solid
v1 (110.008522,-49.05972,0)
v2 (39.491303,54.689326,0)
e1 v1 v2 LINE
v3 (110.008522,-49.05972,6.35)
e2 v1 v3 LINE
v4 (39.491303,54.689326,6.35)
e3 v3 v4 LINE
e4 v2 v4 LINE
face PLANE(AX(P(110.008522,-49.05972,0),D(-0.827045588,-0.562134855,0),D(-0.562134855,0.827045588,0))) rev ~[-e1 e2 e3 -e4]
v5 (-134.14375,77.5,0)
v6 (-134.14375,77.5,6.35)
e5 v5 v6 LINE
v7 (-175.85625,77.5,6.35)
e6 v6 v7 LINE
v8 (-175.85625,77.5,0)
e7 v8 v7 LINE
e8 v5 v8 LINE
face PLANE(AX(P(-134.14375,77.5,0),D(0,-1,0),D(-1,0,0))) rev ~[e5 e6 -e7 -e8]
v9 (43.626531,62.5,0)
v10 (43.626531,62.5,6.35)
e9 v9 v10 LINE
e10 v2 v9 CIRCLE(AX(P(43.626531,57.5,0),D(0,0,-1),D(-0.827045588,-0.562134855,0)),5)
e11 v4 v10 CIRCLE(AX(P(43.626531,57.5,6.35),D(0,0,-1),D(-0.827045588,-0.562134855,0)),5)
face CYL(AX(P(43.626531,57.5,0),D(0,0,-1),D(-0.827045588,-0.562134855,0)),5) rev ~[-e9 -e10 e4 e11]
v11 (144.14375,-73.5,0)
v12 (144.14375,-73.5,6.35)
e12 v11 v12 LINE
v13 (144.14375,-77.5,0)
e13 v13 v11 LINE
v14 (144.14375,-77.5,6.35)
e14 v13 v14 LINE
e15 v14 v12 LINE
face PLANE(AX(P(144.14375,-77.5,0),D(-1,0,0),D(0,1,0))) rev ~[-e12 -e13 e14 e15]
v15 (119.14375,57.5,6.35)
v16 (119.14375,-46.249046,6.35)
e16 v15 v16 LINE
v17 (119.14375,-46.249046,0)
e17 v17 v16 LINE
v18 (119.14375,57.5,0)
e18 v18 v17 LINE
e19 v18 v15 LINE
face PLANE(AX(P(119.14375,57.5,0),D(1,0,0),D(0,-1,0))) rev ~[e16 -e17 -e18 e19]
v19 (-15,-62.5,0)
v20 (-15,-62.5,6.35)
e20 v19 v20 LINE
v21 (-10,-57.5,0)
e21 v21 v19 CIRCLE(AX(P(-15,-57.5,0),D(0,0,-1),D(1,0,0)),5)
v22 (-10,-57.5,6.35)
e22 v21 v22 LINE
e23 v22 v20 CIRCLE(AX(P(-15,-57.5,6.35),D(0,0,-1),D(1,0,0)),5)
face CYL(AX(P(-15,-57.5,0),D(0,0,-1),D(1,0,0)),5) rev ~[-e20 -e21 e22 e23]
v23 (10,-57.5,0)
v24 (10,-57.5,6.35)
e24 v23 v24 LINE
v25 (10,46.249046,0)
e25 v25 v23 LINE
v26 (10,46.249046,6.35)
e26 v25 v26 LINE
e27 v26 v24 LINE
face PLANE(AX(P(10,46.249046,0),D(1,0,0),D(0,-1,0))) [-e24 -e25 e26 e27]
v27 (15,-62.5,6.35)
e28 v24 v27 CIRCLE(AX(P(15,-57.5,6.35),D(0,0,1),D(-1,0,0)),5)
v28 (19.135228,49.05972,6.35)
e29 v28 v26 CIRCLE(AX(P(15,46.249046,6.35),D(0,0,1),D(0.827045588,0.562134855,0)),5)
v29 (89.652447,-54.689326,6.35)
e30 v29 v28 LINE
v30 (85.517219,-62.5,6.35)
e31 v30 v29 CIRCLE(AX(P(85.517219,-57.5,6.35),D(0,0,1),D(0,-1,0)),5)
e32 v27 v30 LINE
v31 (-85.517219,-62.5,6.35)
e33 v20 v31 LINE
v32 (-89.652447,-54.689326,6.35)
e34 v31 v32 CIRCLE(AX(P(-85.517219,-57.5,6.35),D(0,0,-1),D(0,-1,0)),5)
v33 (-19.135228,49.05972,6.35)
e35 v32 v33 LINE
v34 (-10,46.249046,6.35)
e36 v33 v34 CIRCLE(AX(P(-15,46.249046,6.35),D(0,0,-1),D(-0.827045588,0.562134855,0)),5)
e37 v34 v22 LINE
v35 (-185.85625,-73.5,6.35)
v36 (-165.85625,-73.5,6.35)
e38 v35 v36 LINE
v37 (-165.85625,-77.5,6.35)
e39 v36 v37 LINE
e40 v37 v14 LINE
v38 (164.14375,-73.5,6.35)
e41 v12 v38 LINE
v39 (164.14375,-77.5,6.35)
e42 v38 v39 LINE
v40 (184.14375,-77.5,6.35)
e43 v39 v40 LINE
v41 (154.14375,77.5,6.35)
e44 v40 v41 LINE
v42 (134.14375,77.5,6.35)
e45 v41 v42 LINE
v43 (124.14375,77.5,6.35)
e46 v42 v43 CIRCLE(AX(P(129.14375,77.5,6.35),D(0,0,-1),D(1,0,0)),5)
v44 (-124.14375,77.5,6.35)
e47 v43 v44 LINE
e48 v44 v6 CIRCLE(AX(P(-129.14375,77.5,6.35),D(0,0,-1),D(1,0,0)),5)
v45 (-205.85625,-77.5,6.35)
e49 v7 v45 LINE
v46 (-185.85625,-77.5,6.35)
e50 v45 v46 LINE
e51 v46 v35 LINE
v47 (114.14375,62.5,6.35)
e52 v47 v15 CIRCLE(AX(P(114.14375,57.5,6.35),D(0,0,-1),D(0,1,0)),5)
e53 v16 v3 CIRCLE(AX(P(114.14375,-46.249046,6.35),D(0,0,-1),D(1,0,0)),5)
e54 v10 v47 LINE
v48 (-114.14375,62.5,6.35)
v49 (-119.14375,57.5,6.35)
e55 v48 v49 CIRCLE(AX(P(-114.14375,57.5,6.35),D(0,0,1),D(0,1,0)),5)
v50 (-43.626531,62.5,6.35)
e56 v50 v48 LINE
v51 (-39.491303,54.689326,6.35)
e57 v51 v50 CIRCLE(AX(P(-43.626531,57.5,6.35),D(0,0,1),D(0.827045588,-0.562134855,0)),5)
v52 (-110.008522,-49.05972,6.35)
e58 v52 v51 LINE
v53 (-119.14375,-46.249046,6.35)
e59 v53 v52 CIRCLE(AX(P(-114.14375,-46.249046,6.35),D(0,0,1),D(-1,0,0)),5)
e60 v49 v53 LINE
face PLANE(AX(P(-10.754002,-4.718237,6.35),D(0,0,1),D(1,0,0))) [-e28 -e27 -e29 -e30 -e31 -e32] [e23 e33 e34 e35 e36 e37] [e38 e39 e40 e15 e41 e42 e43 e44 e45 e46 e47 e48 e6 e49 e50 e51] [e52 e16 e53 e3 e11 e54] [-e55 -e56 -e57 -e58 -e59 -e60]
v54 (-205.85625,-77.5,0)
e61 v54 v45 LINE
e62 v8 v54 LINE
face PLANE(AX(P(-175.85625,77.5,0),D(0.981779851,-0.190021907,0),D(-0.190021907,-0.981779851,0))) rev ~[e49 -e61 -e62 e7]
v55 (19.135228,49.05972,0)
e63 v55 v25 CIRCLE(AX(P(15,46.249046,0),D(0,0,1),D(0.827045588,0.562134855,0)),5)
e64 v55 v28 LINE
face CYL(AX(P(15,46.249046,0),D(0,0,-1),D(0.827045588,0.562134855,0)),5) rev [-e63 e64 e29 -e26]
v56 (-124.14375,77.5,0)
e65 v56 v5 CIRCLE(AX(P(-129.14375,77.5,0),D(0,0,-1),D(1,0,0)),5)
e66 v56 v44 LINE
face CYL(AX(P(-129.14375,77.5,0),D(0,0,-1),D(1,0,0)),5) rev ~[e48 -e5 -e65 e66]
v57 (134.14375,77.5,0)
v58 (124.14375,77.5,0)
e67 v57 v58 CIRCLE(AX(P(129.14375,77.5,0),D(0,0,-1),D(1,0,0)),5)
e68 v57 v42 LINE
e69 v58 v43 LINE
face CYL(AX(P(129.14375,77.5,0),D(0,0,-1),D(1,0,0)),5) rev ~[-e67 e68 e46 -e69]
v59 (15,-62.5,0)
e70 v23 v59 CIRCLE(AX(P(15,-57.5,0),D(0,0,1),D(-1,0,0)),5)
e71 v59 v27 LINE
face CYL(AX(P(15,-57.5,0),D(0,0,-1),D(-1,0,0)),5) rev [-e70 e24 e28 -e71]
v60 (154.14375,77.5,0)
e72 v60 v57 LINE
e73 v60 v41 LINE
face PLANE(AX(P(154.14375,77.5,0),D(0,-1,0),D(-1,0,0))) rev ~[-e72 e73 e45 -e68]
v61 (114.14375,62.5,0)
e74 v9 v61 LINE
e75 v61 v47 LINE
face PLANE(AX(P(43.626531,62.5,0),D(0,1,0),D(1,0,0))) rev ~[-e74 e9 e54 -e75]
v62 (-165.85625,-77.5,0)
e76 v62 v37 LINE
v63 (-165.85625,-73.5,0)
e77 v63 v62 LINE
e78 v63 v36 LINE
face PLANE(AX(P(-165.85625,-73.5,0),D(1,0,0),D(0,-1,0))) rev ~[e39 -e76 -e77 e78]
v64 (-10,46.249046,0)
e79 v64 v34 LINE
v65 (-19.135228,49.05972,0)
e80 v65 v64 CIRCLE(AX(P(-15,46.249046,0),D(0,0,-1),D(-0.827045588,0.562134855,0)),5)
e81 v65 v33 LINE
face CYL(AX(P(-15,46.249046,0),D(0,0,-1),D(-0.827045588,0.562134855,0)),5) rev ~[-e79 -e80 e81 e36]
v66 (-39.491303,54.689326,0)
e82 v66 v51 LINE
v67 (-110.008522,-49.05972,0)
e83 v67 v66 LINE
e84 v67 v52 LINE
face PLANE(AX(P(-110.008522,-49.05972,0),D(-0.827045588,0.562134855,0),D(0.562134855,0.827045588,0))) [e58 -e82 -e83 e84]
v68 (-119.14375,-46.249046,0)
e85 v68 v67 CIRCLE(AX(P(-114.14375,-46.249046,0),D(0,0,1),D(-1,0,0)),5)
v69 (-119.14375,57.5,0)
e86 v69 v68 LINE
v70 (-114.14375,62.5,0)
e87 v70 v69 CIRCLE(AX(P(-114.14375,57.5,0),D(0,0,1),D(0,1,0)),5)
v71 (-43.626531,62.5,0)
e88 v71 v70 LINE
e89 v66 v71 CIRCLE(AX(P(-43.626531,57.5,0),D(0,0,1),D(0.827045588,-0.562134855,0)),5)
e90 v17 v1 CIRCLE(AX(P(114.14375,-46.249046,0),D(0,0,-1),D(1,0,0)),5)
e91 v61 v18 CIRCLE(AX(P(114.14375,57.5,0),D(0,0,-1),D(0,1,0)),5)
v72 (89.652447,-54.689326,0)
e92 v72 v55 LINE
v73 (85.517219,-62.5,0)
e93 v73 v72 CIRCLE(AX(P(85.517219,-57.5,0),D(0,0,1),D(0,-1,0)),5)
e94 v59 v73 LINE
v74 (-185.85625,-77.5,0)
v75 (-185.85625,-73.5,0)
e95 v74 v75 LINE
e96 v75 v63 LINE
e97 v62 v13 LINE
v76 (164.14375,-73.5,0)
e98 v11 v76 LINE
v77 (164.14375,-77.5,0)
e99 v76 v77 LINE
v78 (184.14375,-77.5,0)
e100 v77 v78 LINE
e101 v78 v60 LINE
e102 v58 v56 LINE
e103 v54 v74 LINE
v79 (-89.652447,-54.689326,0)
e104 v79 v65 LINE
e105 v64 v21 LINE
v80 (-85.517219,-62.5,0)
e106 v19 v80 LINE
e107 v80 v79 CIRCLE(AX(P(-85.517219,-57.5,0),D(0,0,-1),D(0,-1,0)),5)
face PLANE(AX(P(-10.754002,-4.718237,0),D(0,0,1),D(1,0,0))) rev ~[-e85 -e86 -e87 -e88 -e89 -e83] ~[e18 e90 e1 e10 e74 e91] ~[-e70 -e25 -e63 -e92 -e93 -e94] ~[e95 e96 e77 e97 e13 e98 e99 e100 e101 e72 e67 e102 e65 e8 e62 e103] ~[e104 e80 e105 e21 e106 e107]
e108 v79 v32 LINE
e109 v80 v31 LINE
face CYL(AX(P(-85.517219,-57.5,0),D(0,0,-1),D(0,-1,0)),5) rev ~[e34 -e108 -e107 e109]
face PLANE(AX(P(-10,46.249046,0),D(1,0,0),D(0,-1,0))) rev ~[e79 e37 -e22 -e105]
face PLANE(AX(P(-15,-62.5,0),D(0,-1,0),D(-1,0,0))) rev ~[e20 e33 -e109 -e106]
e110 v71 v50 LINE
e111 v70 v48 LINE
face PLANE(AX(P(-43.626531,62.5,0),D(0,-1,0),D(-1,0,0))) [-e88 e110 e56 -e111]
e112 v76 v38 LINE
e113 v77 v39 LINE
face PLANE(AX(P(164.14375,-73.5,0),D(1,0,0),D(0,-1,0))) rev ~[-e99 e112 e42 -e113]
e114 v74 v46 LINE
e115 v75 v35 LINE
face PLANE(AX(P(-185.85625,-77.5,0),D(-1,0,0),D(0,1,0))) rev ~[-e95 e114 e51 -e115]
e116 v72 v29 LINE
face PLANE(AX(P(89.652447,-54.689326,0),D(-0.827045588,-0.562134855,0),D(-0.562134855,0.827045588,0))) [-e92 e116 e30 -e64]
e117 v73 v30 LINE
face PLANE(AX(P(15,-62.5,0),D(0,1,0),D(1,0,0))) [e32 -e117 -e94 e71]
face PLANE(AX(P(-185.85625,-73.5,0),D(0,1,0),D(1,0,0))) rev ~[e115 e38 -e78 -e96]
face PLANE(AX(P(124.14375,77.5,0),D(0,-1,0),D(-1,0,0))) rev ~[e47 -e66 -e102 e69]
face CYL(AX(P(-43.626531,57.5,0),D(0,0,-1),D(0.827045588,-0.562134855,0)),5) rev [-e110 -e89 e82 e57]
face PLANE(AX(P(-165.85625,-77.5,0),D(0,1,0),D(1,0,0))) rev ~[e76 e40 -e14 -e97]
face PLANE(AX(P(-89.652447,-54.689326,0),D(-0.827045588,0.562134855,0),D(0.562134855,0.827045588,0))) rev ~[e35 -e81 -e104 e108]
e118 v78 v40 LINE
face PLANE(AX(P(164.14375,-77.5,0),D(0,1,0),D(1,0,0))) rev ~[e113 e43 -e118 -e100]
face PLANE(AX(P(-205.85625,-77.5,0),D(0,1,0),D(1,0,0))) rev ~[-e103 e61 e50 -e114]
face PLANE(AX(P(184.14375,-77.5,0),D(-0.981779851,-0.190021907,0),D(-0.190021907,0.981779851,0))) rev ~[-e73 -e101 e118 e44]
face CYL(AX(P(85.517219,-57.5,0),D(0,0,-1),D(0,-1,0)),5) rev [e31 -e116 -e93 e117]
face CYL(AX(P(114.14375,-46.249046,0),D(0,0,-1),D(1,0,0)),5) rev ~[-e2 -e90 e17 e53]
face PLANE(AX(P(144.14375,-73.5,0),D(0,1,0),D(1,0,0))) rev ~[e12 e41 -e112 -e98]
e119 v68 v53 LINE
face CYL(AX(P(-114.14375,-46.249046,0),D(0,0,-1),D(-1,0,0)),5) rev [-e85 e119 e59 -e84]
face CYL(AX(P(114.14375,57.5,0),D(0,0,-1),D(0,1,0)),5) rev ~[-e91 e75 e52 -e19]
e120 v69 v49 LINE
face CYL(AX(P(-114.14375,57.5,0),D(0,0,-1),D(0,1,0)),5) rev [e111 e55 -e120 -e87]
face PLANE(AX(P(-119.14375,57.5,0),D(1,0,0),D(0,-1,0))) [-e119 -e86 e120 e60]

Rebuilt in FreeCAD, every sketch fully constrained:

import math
import FreeCAD as App
import Part
import Sketcher
Q = App.Units.Quantity

doc = App.newDocument("Part")
params = doc.addObject("Spreadsheet::Sheet", "Params")
for row, (alias, value) in enumerate([
    ("sketch1_radius", "5 mm"),
    ("sketch1_width", "310 mm"),
    ("sketch1_width2", "20 mm"),
    ("sketch1_height", "4 mm"),
    ("pad1_length", "6.35 mm"),
], start=1):
    params.set(f"A{row}", alias)
    params.set(f"B{row}", "=" + value)
    params.setAlias(f"B{row}", alias)

body = doc.addObject("PartDesign::Body", "Body")

# Sketch on XY plane
sketch1 = body.newObject("Sketcher::SketchObject", "Sketch")
sketch1.AttachmentSupport = (doc.getObject("XY_Plane"), [""])
sketch1.MapMode = "FlatFace"
sketch1.addGeometry(Part.LineSegment(App.Vector(-165.85625, -77.5, 0), App.Vector(144.14375, -77.5, 0)), False)
sketch1.addGeometry(Part.LineSegment(App.Vector(144.14375, -77.5, 0), App.Vector(144.14375, -73.5, 0)), False)
sketch1.addGeometry(Part.LineSegment(App.Vector(144.14375, -73.5, 0), App.Vector(164.14375, -73.5, 0)), False)
sketch1.addGeometry(Part.LineSegment(App.Vector(164.14375, -73.5, 0), App.Vector(164.14375, -77.5, 0)), False)
sketch1.addGeometry(Part.LineSegment(App.Vector(164.14375, -77.5, 0), App.Vector(184.14375, -77.5, 0)), False)
sketch1.addGeometry(Part.LineSegment(App.Vector(184.14375, -77.5, 0), App.Vector(154.14375, 77.5, 0)), False)
sketch1.addGeometry(Part.LineSegment(App.Vector(154.14375, 77.5, 0), App.Vector(134.14375, 77.5, 0)), False)
sketch1.addGeometry(Part.ArcOfCircle(Part.Circle(App.Vector(129.14375, 77.5, 0), App.Vector(0, 0, 1), 5), math.radians(180), math.radians(360)), False)
sketch1.addGeometry(Part.LineSegment(App.Vector(124.14375, 77.5, 0), App.Vector(-124.14375, 77.5, 0)), False)
sketch1.addGeometry(Part.ArcOfCircle(Part.Circle(App.Vector(-129.14375, 77.5, 0), App.Vector(0, 0, 1), 5), math.radians(180), math.radians(360)), False)
sketch1.addGeometry(Part.LineSegment(App.Vector(-134.14375, 77.5, 0), App.Vector(-175.85625, 77.5, 0)), False)
sketch1.addGeometry(Part.LineSegment(App.Vector(-175.85625, 77.5, 0), App.Vector(-205.85625, -77.5, 0)), False)
sketch1.addGeometry(Part.LineSegment(App.Vector(-205.85625, -77.5, 0), App.Vector(-185.85625, -77.5, 0)), False)
sketch1.addGeometry(Part.LineSegment(App.Vector(-185.85625, -77.5, 0), App.Vector(-185.85625, -73.5, 0)), False)
sketch1.addGeometry(Part.LineSegment(App.Vector(-185.85625, -73.5, 0), App.Vector(-165.85625, -73.5, 0)), False)
sketch1.addGeometry(Part.LineSegment(App.Vector(-165.85625, -73.5, 0), App.Vector(-165.85625, -77.5, 0)), False)
sketch1.addGeometry(Part.ArcOfCircle(Part.Circle(App.Vector(-85.517219, -57.5, 0), App.Vector(0, 0, 1), 5), math.radians(145.796434), math.radians(270)), False)
sketch1.addGeometry(Part.LineSegment(App.Vector(-89.652447, -54.689326, 0), App.Vector(-19.135228, 49.05972, 0)), False)
sketch1.addGeometry(Part.ArcOfCircle(Part.Circle(App.Vector(-15, 46.249046, 0), App.Vector(0, 0, 1), 5), math.radians(0), math.radians(145.796434)), False)
sketch1.addGeometry(Part.LineSegment(App.Vector(-10, 46.249046, 0), App.Vector(-10, -57.5, 0)), False)
sketch1.addGeometry(Part.ArcOfCircle(Part.Circle(App.Vector(-15, -57.5, 0), App.Vector(0, 0, 1), 5), math.radians(-90), math.radians(0)), False)
sketch1.addGeometry(Part.LineSegment(App.Vector(-15, -62.5, 0), App.Vector(-85.517219, -62.5, 0)), False)
sketch1.addGeometry(Part.LineSegment(App.Vector(85.517219, -62.5, 0), App.Vector(15, -62.5, 0)), False)
sketch1.addGeometry(Part.ArcOfCircle(Part.Circle(App.Vector(15, -57.5, 0), App.Vector(0, 0, 1), 5), math.radians(180), math.radians(270)), False)
sketch1.addGeometry(Part.LineSegment(App.Vector(10, -57.5, 0), App.Vector(10, 46.249046, 0)), False)
sketch1.addGeometry(Part.ArcOfCircle(Part.Circle(App.Vector(15, 46.249046, 0), App.Vector(0, 0, 1), 5), math.radians(34.203566), math.radians(180)), False)
sketch1.addGeometry(Part.LineSegment(App.Vector(19.135228, 49.05972, 0), App.Vector(89.652447, -54.689326, 0)), False)
sketch1.addGeometry(Part.ArcOfCircle(Part.Circle(App.Vector(85.517219, -57.5, 0), App.Vector(0, 0, 1), 5), math.radians(-90), math.radians(34.203566)), False)
sketch1.addGeometry(Part.LineSegment(App.Vector(-119.14375, -46.249046, 0), App.Vector(-119.14375, 57.5, 0)), False)
sketch1.addGeometry(Part.ArcOfCircle(Part.Circle(App.Vector(-114.14375, 57.5, 0), App.Vector(0, 0, 1), 5), math.radians(90), math.radians(180)), False)
sketch1.addGeometry(Part.LineSegment(App.Vector(-114.14375, 62.5, 0), App.Vector(-43.626531, 62.5, 0)), False)
sketch1.addGeometry(Part.ArcOfCircle(Part.Circle(App.Vector(-43.626531, 57.5, 0), App.Vector(0, 0, 1), 5), math.radians(-34.203566), math.radians(90)), False)
sketch1.addGeometry(Part.LineSegment(App.Vector(-39.491303, 54.689326, 0), App.Vector(-110.008522, -49.05972, 0)), False)
sketch1.addGeometry(Part.ArcOfCircle(Part.Circle(App.Vector(-114.14375, -46.249046, 0), App.Vector(0, 0, 1), 5), math.radians(-180), math.radians(-34.203566)), False)
sketch1.addGeometry(Part.ArcOfCircle(Part.Circle(App.Vector(43.626531, 57.5, 0), App.Vector(0, 0, 1), 5), math.radians(90), math.radians(214.203566)), False)
sketch1.addGeometry(Part.LineSegment(App.Vector(43.626531, 62.5, 0), App.Vector(114.14375, 62.5, 0)), False)
sketch1.addGeometry(Part.ArcOfCircle(Part.Circle(App.Vector(114.14375, 57.5, 0), App.Vector(0, 0, 1), 5), math.radians(0), math.radians(90)), False)
sketch1.addGeometry(Part.LineSegment(App.Vector(119.14375, 57.5, 0), App.Vector(119.14375, -46.249046, 0)), False)
sketch1.addGeometry(Part.ArcOfCircle(Part.Circle(App.Vector(114.14375, -46.249046, 0), App.Vector(0, 0, 1), 5), math.radians(-145.796434), math.radians(0)), False)
sketch1.addGeometry(Part.LineSegment(App.Vector(110.008522, -49.05972, 0), App.Vector(39.491303, 54.689326, 0)), False)
sketch1.addConstraint(Sketcher.Constraint("Coincident", 0, 2, 1, 1))
sketch1.addConstraint(Sketcher.Constraint("Coincident", 1, 2, 2, 1))
sketch1.addConstraint(Sketcher.Constraint("Coincident", 2, 2, 3, 1))
sketch1.addConstraint(Sketcher.Constraint("Coincident", 3, 2, 4, 1))
sketch1.addConstraint(Sketcher.Constraint("Coincident", 4, 2, 5, 1))
sketch1.addConstraint(Sketcher.Constraint("Coincident", 5, 2, 6, 1))
sketch1.addConstraint(Sketcher.Constraint("Coincident", 6, 2, 7, 2))
sketch1.addConstraint(Sketcher.Constraint("Coincident", 7, 1, 8, 1))
sketch1.addConstraint(Sketcher.Constraint("Coincident", 8, 2, 9, 2))
sketch1.addConstraint(Sketcher.Constraint("Coincident", 9, 1, 10, 1))
sketch1.addConstraint(Sketcher.Constraint("Coincident", 10, 2, 11, 1))
sketch1.addConstraint(Sketcher.Constraint("Coincident", 11, 2, 12, 1))
sketch1.addConstraint(Sketcher.Constraint("Coincident", 12, 2, 13, 1))
sketch1.addConstraint(Sketcher.Constraint("Coincident", 13, 2, 14, 1))
sketch1.addConstraint(Sketcher.Constraint("Coincident", 14, 2, 15, 1))
sketch1.addConstraint(Sketcher.Constraint("Coincident", 15, 2, 0, 1))
sketch1.addConstraint(Sketcher.Constraint("Tangent", 16, 1, 17, 1))
sketch1.addConstraint(Sketcher.Constraint("Tangent", 17, 2, 18, 2))
sketch1.addConstraint(Sketcher.Constraint("Tangent", 18, 1, 19, 1))
sketch1.addConstraint(Sketcher.Constraint("Tangent", 19, 2, 20, 2))
sketch1.addConstraint(Sketcher.Constraint("Tangent", 20, 1, 21, 1))
sketch1.addConstraint(Sketcher.Constraint("Tangent", 21, 2, 16, 2))
sketch1.addConstraint(Sketcher.Constraint("Tangent", 22, 2, 23, 2))
sketch1.addConstraint(Sketcher.Constraint("Tangent", 23, 1, 24, 1))
sketch1.addConstraint(Sketcher.Constraint("Tangent", 24, 2, 25, 2))
sketch1.addConstraint(Sketcher.Constraint("Tangent", 25, 1, 26, 1))
sketch1.addConstraint(Sketcher.Constraint("Tangent", 26, 2, 27, 2))
sketch1.addConstraint(Sketcher.Constraint("Tangent", 27, 1, 22, 1))
sketch1.addConstraint(Sketcher.Constraint("Tangent", 28, 2, 29, 2))
sketch1.addConstraint(Sketcher.Constraint("Tangent", 29, 1, 30, 1))
sketch1.addConstraint(Sketcher.Constraint("Tangent", 30, 2, 31, 2))
sketch1.addConstraint(Sketcher.Constraint("Tangent", 31, 1, 32, 1))
sketch1.addConstraint(Sketcher.Constraint("Tangent", 32, 2, 33, 2))
sketch1.addConstraint(Sketcher.Constraint("Tangent", 33, 1, 28, 1))
sketch1.addConstraint(Sketcher.Constraint("Tangent", 34, 1, 35, 1))
sketch1.addConstraint(Sketcher.Constraint("Tangent", 35, 2, 36, 2))
sketch1.addConstraint(Sketcher.Constraint("Tangent", 36, 1, 37, 1))
sketch1.addConstraint(Sketcher.Constraint("Tangent", 37, 2, 38, 2))
sketch1.addConstraint(Sketcher.Constraint("Tangent", 38, 1, 39, 1))
sketch1.addConstraint(Sketcher.Constraint("Tangent", 39, 2, 34, 2))
sketch1.addConstraint(Sketcher.Constraint("Horizontal", 0))
sketch1.addConstraint(Sketcher.Constraint("Vertical", 1))
sketch1.addConstraint(Sketcher.Constraint("Horizontal", 2))
sketch1.addConstraint(Sketcher.Constraint("Vertical", 3))
sketch1.addConstraint(Sketcher.Constraint("Horizontal", 4))
sketch1.addConstraint(Sketcher.Constraint("Horizontal", 6))
sketch1.addConstraint(Sketcher.Constraint("Horizontal", 8))
sketch1.addConstraint(Sketcher.Constraint("Horizontal", 10))
sketch1.addConstraint(Sketcher.Constraint("Horizontal", 12))
sketch1.addConstraint(Sketcher.Constraint("Vertical", 13))
sketch1.addConstraint(Sketcher.Constraint("Horizontal", 14))
sketch1.addConstraint(Sketcher.Constraint("Vertical", 15))
sketch1.addConstraint(Sketcher.Constraint("Vertical", 19))
sketch1.addConstraint(Sketcher.Constraint("Horizontal", 21))
sketch1.addConstraint(Sketcher.Constraint("Horizontal", 22))
sketch1.addConstraint(Sketcher.Constraint("Vertical", 24))
sketch1.addConstraint(Sketcher.Constraint("Vertical", 28))
sketch1.addConstraint(Sketcher.Constraint("Horizontal", 30))
sketch1.addConstraint(Sketcher.Constraint("Horizontal", 35))
sketch1.addConstraint(Sketcher.Constraint("Vertical", 37))
sketch1.addConstraint(Sketcher.Constraint("Equal", 7, 9))
sketch1.addConstraint(Sketcher.Constraint("Equal", 9, 16))
sketch1.addConstraint(Sketcher.Constraint("Equal", 16, 18))
sketch1.addConstraint(Sketcher.Constraint("Equal", 18, 20))
sketch1.addConstraint(Sketcher.Constraint("Equal", 20, 23))
sketch1.addConstraint(Sketcher.Constraint("Equal", 23, 25))
sketch1.addConstraint(Sketcher.Constraint("Equal", 25, 27))
sketch1.addConstraint(Sketcher.Constraint("Equal", 27, 29))
sketch1.addConstraint(Sketcher.Constraint("Equal", 29, 31))
sketch1.addConstraint(Sketcher.Constraint("Equal", 31, 33))
sketch1.addConstraint(Sketcher.Constraint("Equal", 33, 34))
sketch1.addConstraint(Sketcher.Constraint("Equal", 34, 36))
sketch1.addConstraint(Sketcher.Constraint("Equal", 36, 38))
sketch1.addConstraint(Sketcher.Constraint("Symmetric", 7, 3, 9, 3, -2))
sketch1.addConstraint(Sketcher.Constraint("Symmetric", 20, 3, 23, 3, -2))
sketch1.addConstraint(Sketcher.Constraint("Symmetric", 31, 3, 34, 3, -2))
sketch1.addConstraint(Sketcher.Constraint("Symmetric", 33, 3, 38, 3, -2))
sketch1.addConstraint(Sketcher.Constraint("Symmetric", 17, 2, 25, 1, -2))
sketch1.addConstraint(Sketcher.Constraint("Parallel", 17, 32))
sketch1.addConstraint(Sketcher.Constraint("Horizontal", 0, 2, 3, 2))
sketch1.addConstraint(Sketcher.Constraint("Horizontal", 9, 3, 5, 2))
sketch1.addConstraint(Sketcher.Constraint("Horizontal", 6, 2, 7, 1))
sketch1.addConstraint(Sketcher.Constraint("Horizontal", 8, 2, 9, 1))
sketch1.addConstraint(Sketcher.Constraint("Horizontal", 4, 2, 11, 2))
sketch1.addConstraint(Sketcher.Constraint("Horizontal", 2, 2, 13, 2))
sketch1.addConstraint(Sketcher.Constraint("Equal", 2, 4))
sketch1.addConstraint(Sketcher.Constraint("Equal", 4, 6))
sketch1.addConstraint(Sketcher.Constraint("Equal", 6, 12))
sketch1.addConstraint(Sketcher.Constraint("Equal", 12, 14))
sketch1.addConstraint(Sketcher.Constraint("Equal", 22, 30))
sketch1.addConstraint(Sketcher.Constraint("Equal", 5, 11))
sketch1.addConstraint(Sketcher.Constraint("Radius", 7, Q("5 mm")))
sketch1.addConstraint(Sketcher.Constraint("DistanceX", 0, 1, 0, 2, Q("310 mm")))
sketch1.addConstraint(Sketcher.Constraint("DistanceX", 2, 1, 2, 2, Q("20 mm")))
sketch1.addConstraint(Sketcher.Constraint("DistanceY", 1, 1, 1, 2, Q("4 mm")))
sketch1.addConstraint(Sketcher.Constraint("DistanceX", 18, 3, -1, 1, Q("15 mm")))
sketch1.addConstraint(Sketcher.Constraint("DistanceY", 16, 3, 9, 3, Q("135 mm")))
sketch1.addConstraint(Sketcher.Constraint("DistanceX", 9, 3, 29, 3, Q("15 mm")))
sketch1.addConstraint(Sketcher.Constraint("DistanceY", 29, 3, 9, 3, Q("20 mm")))
sketch1.addConstraint(Sketcher.Constraint("DistanceX", 38, 3, 0, 2, Q("30 mm")))
sketch1.addConstraint(Sketcher.Constraint("DistanceY", 0, 2, 27, 3, Q("20 mm")))
sketch1.addConstraint(Sketcher.Constraint("DistanceY", -1, 1, 7, 3, Q("77.5 mm")))
sketch1.addConstraint(Sketcher.Constraint("DistanceX", 8, 2, 8, 1, Q("248.2875 mm")))
sketch1.addConstraint(Sketcher.Constraint("DistanceX", 21, 2, 21, 1, Q("70.517219 mm")))
sketch1.addConstraint(Sketcher.Constraint("DistanceY", 19, 2, 19, 1, Q("103.749046 mm")))
sketch1.setExpression("Constraints[91]", "Params.sketch1_radius")
sketch1.setExpression("Constraints[92]", "Params.sketch1_width")
sketch1.setExpression("Constraints[93]", "Params.sketch1_width2")
sketch1.setExpression("Constraints[94]", "Params.sketch1_height")
pad1 = body.newObject("PartDesign::Pad", "Pad")
pad1.Profile = sketch1
pad1.setExpression("Length", "Params.pad1_length")

doc.recompute()
